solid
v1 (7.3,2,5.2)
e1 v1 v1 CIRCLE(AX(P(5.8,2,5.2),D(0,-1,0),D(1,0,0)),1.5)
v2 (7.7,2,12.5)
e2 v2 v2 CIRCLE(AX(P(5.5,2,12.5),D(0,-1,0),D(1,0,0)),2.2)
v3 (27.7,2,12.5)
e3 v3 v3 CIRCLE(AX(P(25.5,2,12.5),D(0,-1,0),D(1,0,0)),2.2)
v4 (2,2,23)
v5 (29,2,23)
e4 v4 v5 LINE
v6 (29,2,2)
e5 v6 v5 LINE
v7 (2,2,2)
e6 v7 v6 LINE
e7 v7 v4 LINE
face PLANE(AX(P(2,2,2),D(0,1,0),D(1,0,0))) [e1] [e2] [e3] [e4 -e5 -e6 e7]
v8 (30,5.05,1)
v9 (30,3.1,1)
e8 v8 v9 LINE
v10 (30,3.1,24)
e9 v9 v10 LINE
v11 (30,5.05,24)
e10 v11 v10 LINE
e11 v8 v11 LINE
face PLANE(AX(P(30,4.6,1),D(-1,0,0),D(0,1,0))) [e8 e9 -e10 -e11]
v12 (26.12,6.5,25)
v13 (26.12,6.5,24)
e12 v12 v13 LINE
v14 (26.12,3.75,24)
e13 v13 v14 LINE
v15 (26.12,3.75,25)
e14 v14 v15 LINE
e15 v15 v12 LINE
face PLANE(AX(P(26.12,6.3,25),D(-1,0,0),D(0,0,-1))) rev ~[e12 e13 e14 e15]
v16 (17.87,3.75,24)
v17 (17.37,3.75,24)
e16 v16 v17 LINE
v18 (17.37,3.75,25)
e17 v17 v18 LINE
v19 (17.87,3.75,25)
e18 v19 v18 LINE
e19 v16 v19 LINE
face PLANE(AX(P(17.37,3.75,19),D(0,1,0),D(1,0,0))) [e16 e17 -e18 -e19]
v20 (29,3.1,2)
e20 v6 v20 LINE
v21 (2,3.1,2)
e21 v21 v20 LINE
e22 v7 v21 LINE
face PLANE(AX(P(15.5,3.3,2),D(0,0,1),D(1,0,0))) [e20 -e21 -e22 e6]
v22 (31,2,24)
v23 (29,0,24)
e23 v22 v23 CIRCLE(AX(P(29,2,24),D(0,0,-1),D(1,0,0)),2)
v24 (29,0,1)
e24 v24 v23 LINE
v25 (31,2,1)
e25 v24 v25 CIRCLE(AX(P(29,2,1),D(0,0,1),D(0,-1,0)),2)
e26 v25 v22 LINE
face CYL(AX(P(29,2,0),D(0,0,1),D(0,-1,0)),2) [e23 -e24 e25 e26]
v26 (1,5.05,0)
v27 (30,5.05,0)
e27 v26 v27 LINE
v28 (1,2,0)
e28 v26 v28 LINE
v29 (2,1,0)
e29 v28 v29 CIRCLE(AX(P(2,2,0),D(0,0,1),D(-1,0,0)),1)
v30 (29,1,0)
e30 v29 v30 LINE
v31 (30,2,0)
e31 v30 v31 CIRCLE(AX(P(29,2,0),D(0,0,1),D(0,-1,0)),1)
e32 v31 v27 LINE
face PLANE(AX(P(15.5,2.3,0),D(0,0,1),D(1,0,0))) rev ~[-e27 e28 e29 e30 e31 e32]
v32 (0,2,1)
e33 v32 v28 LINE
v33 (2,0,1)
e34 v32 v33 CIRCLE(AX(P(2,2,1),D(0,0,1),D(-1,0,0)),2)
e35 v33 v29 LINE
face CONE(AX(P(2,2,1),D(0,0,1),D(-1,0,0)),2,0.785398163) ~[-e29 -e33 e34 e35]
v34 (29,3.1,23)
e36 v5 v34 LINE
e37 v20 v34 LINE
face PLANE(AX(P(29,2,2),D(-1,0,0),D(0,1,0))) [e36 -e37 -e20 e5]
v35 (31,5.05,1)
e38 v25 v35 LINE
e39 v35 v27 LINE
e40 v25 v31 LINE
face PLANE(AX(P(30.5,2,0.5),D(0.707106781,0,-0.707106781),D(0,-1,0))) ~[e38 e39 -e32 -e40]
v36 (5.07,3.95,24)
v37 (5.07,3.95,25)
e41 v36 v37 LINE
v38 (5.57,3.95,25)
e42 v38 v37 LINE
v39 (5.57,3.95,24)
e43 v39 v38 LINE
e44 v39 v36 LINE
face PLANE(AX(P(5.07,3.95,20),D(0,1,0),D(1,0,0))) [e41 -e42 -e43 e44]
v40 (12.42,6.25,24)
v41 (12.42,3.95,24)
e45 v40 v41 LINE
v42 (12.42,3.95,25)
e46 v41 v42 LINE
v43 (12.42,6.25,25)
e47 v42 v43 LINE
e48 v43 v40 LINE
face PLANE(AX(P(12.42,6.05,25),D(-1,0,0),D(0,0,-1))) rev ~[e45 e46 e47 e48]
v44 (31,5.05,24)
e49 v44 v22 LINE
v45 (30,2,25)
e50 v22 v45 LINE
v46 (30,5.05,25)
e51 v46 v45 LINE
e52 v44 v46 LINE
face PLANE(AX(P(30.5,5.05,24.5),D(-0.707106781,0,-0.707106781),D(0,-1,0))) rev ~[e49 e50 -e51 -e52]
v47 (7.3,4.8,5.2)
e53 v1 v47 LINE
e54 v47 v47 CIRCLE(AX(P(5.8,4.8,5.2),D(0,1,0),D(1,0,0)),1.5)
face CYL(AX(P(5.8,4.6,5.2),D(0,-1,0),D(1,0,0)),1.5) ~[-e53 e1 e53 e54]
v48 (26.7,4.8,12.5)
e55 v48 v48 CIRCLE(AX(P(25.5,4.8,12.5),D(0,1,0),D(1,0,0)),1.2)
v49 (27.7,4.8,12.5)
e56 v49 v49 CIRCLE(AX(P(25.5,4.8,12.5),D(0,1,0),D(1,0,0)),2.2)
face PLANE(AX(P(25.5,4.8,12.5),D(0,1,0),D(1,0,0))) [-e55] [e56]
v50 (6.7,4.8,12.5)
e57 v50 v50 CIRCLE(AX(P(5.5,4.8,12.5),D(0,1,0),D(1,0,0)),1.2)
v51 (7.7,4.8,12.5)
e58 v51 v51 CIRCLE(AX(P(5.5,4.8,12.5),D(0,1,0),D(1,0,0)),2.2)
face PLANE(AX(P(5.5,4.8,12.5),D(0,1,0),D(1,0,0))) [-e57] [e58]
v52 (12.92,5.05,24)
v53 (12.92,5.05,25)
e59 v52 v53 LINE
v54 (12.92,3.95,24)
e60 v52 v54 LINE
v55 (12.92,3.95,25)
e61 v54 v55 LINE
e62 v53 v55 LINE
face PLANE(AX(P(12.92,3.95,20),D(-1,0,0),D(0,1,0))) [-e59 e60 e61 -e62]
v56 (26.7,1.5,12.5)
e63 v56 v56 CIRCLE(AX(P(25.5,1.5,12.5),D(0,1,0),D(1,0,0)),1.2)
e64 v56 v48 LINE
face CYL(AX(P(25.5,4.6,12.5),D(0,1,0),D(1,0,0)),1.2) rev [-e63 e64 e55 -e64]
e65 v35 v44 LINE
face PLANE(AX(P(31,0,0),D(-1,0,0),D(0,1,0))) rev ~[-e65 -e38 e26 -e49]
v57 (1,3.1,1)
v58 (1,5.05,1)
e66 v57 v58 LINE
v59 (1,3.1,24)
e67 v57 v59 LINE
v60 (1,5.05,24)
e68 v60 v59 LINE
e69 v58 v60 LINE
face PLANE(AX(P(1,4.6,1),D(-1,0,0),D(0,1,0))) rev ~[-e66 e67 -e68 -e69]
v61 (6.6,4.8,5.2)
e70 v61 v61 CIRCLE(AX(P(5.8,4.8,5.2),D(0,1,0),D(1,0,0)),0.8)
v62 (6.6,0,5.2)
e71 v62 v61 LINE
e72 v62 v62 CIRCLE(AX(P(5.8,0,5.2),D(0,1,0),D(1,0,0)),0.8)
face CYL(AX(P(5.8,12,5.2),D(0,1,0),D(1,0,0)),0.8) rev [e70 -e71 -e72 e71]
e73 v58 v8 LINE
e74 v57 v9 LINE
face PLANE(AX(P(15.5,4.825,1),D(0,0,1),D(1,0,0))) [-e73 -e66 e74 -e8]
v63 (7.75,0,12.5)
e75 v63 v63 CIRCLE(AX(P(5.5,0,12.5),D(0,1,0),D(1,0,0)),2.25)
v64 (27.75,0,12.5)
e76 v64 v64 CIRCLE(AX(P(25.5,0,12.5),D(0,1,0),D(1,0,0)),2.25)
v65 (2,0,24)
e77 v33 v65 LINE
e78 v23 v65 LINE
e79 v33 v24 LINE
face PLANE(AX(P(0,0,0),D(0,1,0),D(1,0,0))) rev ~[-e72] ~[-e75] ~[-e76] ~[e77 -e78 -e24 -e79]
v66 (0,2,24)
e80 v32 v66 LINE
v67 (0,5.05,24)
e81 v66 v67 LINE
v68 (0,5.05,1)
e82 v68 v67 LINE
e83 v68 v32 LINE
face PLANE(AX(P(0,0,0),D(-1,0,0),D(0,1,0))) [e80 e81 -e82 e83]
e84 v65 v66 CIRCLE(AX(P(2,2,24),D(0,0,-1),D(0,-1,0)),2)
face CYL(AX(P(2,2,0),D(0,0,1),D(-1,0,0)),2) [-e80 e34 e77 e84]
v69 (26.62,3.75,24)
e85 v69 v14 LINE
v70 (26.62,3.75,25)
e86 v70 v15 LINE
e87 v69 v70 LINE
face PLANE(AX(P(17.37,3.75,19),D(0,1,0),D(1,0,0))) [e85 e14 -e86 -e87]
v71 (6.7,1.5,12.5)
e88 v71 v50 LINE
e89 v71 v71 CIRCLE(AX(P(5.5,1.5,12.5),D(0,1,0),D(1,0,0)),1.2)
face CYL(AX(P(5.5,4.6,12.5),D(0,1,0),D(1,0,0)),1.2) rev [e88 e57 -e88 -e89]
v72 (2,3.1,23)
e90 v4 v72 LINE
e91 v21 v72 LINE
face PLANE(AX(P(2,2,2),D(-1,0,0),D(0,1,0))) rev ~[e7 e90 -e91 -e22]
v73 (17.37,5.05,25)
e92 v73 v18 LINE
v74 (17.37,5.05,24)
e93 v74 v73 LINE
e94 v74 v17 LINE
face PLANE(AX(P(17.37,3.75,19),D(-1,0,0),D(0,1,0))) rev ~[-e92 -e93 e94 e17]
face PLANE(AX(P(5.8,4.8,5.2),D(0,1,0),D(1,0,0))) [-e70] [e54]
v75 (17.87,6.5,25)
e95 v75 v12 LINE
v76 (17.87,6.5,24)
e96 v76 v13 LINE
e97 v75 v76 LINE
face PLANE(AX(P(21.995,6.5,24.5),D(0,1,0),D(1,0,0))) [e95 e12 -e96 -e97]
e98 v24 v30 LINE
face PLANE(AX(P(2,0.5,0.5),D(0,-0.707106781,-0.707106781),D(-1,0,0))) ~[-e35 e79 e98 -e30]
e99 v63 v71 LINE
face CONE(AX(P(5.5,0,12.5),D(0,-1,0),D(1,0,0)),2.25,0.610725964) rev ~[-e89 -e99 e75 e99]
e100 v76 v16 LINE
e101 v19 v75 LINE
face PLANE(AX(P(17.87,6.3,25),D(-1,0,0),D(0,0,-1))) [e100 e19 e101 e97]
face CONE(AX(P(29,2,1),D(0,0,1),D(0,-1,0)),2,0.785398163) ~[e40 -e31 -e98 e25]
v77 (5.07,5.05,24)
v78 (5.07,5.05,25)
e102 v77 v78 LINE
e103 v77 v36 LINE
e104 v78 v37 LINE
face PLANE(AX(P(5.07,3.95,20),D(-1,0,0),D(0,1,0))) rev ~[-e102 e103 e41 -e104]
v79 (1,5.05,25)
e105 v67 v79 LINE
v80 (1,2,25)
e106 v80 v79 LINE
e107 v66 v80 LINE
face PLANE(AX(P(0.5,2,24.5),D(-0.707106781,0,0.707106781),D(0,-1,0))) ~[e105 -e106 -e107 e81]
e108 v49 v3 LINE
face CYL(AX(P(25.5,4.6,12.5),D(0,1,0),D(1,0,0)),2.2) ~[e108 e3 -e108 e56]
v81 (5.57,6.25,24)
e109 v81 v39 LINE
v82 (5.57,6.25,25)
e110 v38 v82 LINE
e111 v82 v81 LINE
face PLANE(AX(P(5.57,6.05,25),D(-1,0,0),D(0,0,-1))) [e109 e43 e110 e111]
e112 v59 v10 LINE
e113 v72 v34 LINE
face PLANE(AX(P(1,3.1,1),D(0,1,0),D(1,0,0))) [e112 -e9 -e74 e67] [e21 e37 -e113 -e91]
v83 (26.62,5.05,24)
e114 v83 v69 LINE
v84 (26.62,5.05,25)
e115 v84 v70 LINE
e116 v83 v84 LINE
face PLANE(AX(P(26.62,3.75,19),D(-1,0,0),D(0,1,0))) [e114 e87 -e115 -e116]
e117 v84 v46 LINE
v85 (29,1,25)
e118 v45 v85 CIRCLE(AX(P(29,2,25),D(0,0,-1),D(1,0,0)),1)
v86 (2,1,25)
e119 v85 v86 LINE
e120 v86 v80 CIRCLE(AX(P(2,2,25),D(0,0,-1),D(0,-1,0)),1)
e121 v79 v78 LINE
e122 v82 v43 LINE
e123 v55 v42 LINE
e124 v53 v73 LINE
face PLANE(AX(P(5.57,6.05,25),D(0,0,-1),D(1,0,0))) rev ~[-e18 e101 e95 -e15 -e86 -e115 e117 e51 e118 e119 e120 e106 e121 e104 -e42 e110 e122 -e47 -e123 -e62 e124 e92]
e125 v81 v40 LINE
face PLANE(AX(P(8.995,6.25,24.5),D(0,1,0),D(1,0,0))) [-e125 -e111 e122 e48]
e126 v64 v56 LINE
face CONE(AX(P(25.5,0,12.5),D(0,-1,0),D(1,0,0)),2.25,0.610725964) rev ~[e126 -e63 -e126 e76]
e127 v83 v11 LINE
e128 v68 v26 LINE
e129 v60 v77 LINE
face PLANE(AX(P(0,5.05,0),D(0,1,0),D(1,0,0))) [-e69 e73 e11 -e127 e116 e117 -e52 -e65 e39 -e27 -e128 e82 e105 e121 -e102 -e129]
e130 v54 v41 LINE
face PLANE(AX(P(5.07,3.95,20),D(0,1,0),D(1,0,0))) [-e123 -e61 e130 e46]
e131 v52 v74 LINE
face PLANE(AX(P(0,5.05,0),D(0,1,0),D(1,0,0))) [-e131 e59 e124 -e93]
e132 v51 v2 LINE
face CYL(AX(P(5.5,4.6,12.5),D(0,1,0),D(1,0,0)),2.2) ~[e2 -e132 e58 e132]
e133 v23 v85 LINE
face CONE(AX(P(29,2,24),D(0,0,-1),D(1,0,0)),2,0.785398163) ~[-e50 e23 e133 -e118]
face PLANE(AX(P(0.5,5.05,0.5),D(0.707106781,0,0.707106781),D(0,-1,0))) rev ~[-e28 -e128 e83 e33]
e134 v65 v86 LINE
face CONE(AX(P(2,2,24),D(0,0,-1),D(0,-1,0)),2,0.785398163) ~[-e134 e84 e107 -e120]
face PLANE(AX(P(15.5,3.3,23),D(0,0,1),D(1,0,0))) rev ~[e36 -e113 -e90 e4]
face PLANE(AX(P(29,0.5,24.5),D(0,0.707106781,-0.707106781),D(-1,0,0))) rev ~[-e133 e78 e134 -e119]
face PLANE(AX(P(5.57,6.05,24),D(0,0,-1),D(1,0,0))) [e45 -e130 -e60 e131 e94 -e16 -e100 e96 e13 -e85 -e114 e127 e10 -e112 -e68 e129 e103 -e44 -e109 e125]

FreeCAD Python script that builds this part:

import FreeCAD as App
import Part
import Sketcher
Q = App.Units.Quantity


def edges_at(feature, points):
    """Names of the edges that pass closest to the given points."""
    edges = feature.Shape.Edges
    near = lambda p: min(range(len(edges)), key=lambda i: edges[i].distToShape(Part.Vertex(*p))[0])
    return sorted({f"Edge{near(p) + 1}" for p in points})


def add_polygon(sketch, points):
    """Adds a closed chain of lines whose ends are joined by coincident constraints."""
    first, n = sketch.GeometryCount, len(points)
    for a, b in zip(points, points[1:] + points[:1]):
        sketch.addGeometry(Part.LineSegment(App.Vector(*a, 0), App.Vector(*b, 0)), False)
    for i in range(n):
        sketch.addConstraint(Sketcher.Constraint("Coincident", first + i, 2, first + (i + 1) % n, 1))

doc = App.newDocument("Part")
body = doc.addObject("PartDesign::Body", "Body")

sketch1 = doc.addObject("Sketcher::SketchObject", "Sketch")
body.addObject(sketch1)
sketch1.AttachmentSupport = (doc.XZ_Plane, [""])
sketch1.MapMode = "FlatFace"
sketch1.AttachmentOffset = App.Placement(App.Vector(0, 0, -6.3), App.Rotation())
add_polygon(sketch1, [(17.9, 24), (17.9, 25), (26.1, 25), (26.1, 24)])
sketch1.addConstraint(Sketcher.Constraint("Vertical", 0))
sketch1.addConstraint(Sketcher.Constraint("Horizontal", 1))
sketch1.addConstraint(Sketcher.Constraint("Vertical", 2))
sketch1.addConstraint(Sketcher.Constraint("Horizontal", 3))
sketch1.addConstraint(Sketcher.Constraint("DistanceY", 0, 1, 0, 2, Q("1 mm")))
sketch1.addConstraint(Sketcher.Constraint("DistanceY", -1, 1, 0, 2, Q("25 mm")))
sketch1.addConstraint(Sketcher.Constraint("DistanceX", 1, 1, 1, 2, Q("8.25 mm")))
sketch1.addConstraint(Sketcher.Constraint("DistanceX", -1, 1, 0, 2, Q("17.87 mm")))
pad1 = doc.addObject("PartDesign::Pad", "Pad")
body.addObject(pad1)
pad1.Profile = sketch1
pad1.Length = 0.2
pad1.Reversed = True
body2 = doc.addObject("PartDesign::Body", "Body001")

sketch2 = doc.addObject("Sketcher::SketchObject", "Sketch001")
body2.addObject(sketch2)
sketch2.AttachmentSupport = (doc.getObject("XZ_Plane001"), [""])
sketch2.MapMode = "FlatFace"
sketch2.AttachmentOffset = App.Placement(App.Vector(0, 0, -6.05), App.Rotation())
add_polygon(sketch2, [(5.6, 24), (5.6, 25), (12.4, 25), (12.4, 24)])
sketch2.addConstraint(Sketcher.Constraint("Vertical", 0))
sketch2.addConstraint(Sketcher.Constraint("Horizontal", 1))
sketch2.addConstraint(Sketcher.Constraint("Vertical", 2))
sketch2.addConstraint(Sketcher.Constraint("Horizontal", 3))
sketch2.addConstraint(Sketcher.Constraint("DistanceY", 0, 1, 0, 2, Q("1 mm")))
sketch2.addConstraint(Sketcher.Constraint("DistanceY", -1, 1, 0, 2, Q("25 mm")))
sketch2.addConstraint(Sketcher.Constraint("DistanceX", 1, 1, 1, 2, Q("6.85 mm")))
sketch2.addConstraint(Sketcher.Constraint("DistanceX", -1, 1, 0, 2, Q("5.57 mm")))
pad2 = doc.addObject("PartDesign::Pad", "Pad001")
body2.addObject(pad2)
pad2.Profile = sketch2
pad2.Length = 0.2
pad2.Reversed = True
body3 = doc.addObject("PartDesign::Body", "Body002")

sketch3 = doc.addObject("Sketcher::SketchObject", "Sketch002")
body3.addObject(sketch3)
sketch3.AttachmentSupport = (doc.getObject("XY_Plane002"), [""])
sketch3.MapMode = "FlatFace"
sketch3.AttachmentOffset = App.Placement(App.Vector(0, 0, 24), App.Rotation())
add_polygon(sketch3, [(17.9, 6.3), (17.9, 3.8), (26.1, 3.8), (26.1, 6.3)])
sketch3.addConstraint(Sketcher.Constraint("Vertical", 0))
sketch3.addConstraint(Sketcher.Constraint("Horizontal", 1))
sketch3.addConstraint(Sketcher.Constraint("Vertical", 2))
sketch3.addConstraint(Sketcher.Constraint("Horizontal", 3))
sketch3.addConstraint(Sketcher.Constraint("DistanceX", 1, 1, 1, 2, Q("8.25 mm")))
sketch3.addConstraint(Sketcher.Constraint("DistanceY", 0, 2, 0, 1, Q("2.55 mm")))
sketch3.addConstraint(Sketcher.Constraint("DistanceY", -1, 1, 2, 2, Q("6.3 mm")))
sketch3.addConstraint(Sketcher.Constraint("DistanceX", -1, 1, 0, 2, Q("17.87 mm")))
pad3 = doc.addObject("PartDesign::Pad", "Pad002")
body3.addObject(pad3)
pad3.Profile = sketch3
pad3.Length = 1
body4 = doc.addObject("PartDesign::Body", "Body003")

sketch4 = doc.addObject("Sketcher::SketchObject", "Sketch003")
body4.addObject(sketch4)
sketch4.AttachmentSupport = (doc.getObject("XY_Plane003"), [""])
sketch4.MapMode = "FlatFace"
sketch4.AttachmentOffset = App.Placement(App.Vector(0, 0, 24), App.Rotation())
add_polygon(sketch4, [(5.6, 6), (5.6, 4), (12.4, 4), (12.4, 6)])
sketch4.addConstraint(Sketcher.Constraint("Vertical", 0))
sketch4.addConstraint(Sketcher.Constraint("Horizontal", 1))
sketch4.addConstraint(Sketcher.Constraint("Vertical", 2))
sketch4.addConstraint(Sketcher.Constraint("Horizontal", 3))
sketch4.addConstraint(Sketcher.Constraint("DistanceY", 0, 2, 0, 1, Q("2.1 mm")))
sketch4.addConstraint(Sketcher.Constraint("DistanceX", 1, 1, 1, 2, Q("6.85 mm")))
sketch4.addConstraint(Sketcher.Constraint("DistanceX", -1, 1, 0, 2, Q("5.57 mm")))
sketch4.addConstraint(Sketcher.Constraint("DistanceY", -1, 1, 0, 2, Q("3.95 mm")))
pad4 = doc.addObject("PartDesign::Pad", "Pad003")
body4.addObject(pad4)
pad4.Profile = sketch4
pad4.Length = 1
body5 = doc.addObject("PartDesign::Body", "Body004")

sketch5 = doc.addObject("Sketcher::SketchObject", "Sketch004")
body5.addObject(sketch5)
sketch5.AttachmentSupport = (doc.getObject("XY_Plane004"), [""])
sketch5.MapMode = "FlatFace"
sketch5.AttachmentOffset = App.Placement(App.Vector(0, 0, 12.5), App.Rotation())
add_polygon(sketch5, [(5.5, 0), (7.8, 0), (6.7, 1.5), (5.5, 1.5)])
sketch5.addGeometry(Part.LineSegment(App.Vector(5.5, 0, 0), App.Vector(5.5, 1.5, 0)), True)
sketch5.addConstraint(Sketcher.Constraint("Horizontal", 0))
sketch5.addConstraint(Sketcher.Constraint("Horizontal", 2))
sketch5.addConstraint(Sketcher.Constraint("Vertical", 3))
sketch5.addConstraint(Sketcher.Constraint("Vertical", 4))
sketch5.addConstraint(Sketcher.Constraint("Coincident", 4, 1, 3, 2))
sketch5.addConstraint(Sketcher.Constraint("PointOnObject", 0, 2, -1))
sketch5.addConstraint(Sketcher.Constraint("Horizontal", 1, 2, 4, 2))
sketch5.addConstraint(Sketcher.Constraint("DistanceX", 2, 2, 2, 1, Q("1.2 mm")))
sketch5.addConstraint(Sketcher.Constraint("DistanceY", 3, 2, 3, 1, Q("1.5 mm")))
sketch5.addConstraint(Sketcher.Constraint("DistanceX", 0, 1, 0, 2, Q("2.25 mm")))
sketch5.addConstraint(Sketcher.Constraint("DistanceX", -1, 1, 1, 2, Q("6.7 mm")))
revolution = doc.addObject("PartDesign::Revolution", "Revolution")
body5.addObject(revolution)
revolution.Profile = sketch5
revolution.ReferenceAxis = (sketch5, ["Axis0"])
revolution.Angle = 360
body6 = doc.addObject("PartDesign::Body", "Body005")
body6.AllowCompound = True

sketch6 = doc.addObject("Sketcher::SketchObject", "Sketch005")
body6.addObject(sketch6)
sketch6.AttachmentSupport = (doc.getObject("XY_Plane005"), [""])
sketch6.MapMode = "FlatFace"
sketch6.AttachmentOffset = App.Placement(App.Vector(0, 0, 12.5), App.Rotation())
add_polygon(sketch6, [(25.5, 0), (27.8, 0), (26.7, 1.5), (25.5, 1.5)])
sketch6.addGeometry(Part.LineSegment(App.Vector(25.5, 0, 0), App.Vector(25.5, 1.5, 0)), True)
sketch6.addConstraint(Sketcher.Constraint("Horizontal", 0))
sketch6.addConstraint(Sketcher.Constraint("Horizontal", 2))
sketch6.addConstraint(Sketcher.Constraint("Vertical", 3))
sketch6.addConstraint(Sketcher.Constraint("Vertical", 4))
sketch6.addConstraint(Sketcher.Constraint("Coincident", 4, 1, 3, 2))
sketch6.addConstraint(Sketcher.Constraint("PointOnObject", 0, 2, -1))
sketch6.addConstraint(Sketcher.Constraint("Horizontal", 1, 2, 4, 2))
sketch6.addConstraint(Sketcher.Constraint("DistanceX", 2, 2, 2, 1, Q("1.2 mm")))
sketch6.addConstraint(Sketcher.Constraint("DistanceY", 3, 2, 3, 1, Q("1.5 mm")))
sketch6.addConstraint(Sketcher.Constraint("DistanceX", 0, 1, 0, 2, Q("2.25 mm")))
sketch6.addConstraint(Sketcher.Constraint("DistanceX", -1, 1, 1, 2, Q("26.7 mm")))
revolution2 = doc.addObject("PartDesign::Revolution", "Revolution001")
body6.addObject(revolution2)
revolution2.Profile = sketch6
revolution2.ReferenceAxis = (sketch6, ["Axis0"])
revolution2.Angle = 360
doc.recompute()

boolean = doc.addObject("PartDesign::Boolean", "Boolean")
body6.addObject(boolean)
boolean.Type = "Fuse"
boolean.addObjects([body5])
body7 = doc.addObject("PartDesign::Body", "Body006")

sketch7 = doc.addObject("Sketcher::SketchObject", "Sketch006")
body7.addObject(sketch7)
sketch7.AttachmentSupport = (doc.getObject("XY_Plane006"), [""])
sketch7.MapMode = "FlatFace"
sketch7.AttachmentOffset = App.Placement(App.Vector(0, 0, 20), App.Rotation())
add_polygon(sketch7, [(5.1, 6), (5.1, 4), (12.9, 4), (12.9, 6)])
sketch7.addConstraint(Sketcher.Constraint("Vertical", 0))
sketch7.addConstraint(Sketcher.Constraint("Horizontal", 1))
sketch7.addConstraint(Sketcher.Constraint("Vertical", 2))
sketch7.addConstraint(Sketcher.Constraint("Horizontal", 3))
sketch7.addConstraint(Sketcher.Constraint("DistanceY", 0, 2, 0, 1, Q("2.1 mm")))
sketch7.addConstraint(Sketcher.Constraint("DistanceX", 1, 1, 1, 2, Q("7.85 mm")))
sketch7.addConstraint(Sketcher.Constraint("DistanceX", -1, 1, 0, 2, Q("5.07 mm")))
sketch7.addConstraint(Sketcher.Constraint("DistanceY", -1, 1, 0, 2, Q("3.95 mm")))
pad5 = doc.addObject("PartDesign::Pad", "Pad004")
body7.addObject(pad5)
pad5.Profile = sketch7
pad5.Length = 10
body8 = doc.addObject("PartDesign::Body", "Body007")
body8.AllowCompound = True

sketch8 = doc.addObject("Sketcher::SketchObject", "Sketch007")
body8.addObject(sketch8)
sketch8.AttachmentSupport = (doc.getObject("XY_Plane007"), [""])
sketch8.MapMode = "FlatFace"
sketch8.AttachmentOffset = App.Placement(App.Vector(0, 0, 19), App.Rotation())
add_polygon(sketch8, [(17.4, 6.3), (17.4, 3.8), (26.6, 3.8), (26.6, 6.3)])
sketch8.addConstraint(Sketcher.Constraint("Vertical", 0))
sketch8.addConstraint(Sketcher.Constraint("Horizontal", 1))
sketch8.addConstraint(Sketcher.Constraint("Vertical", 2))
sketch8.addConstraint(Sketcher.Constraint("Horizontal", 3))
sketch8.addConstraint(Sketcher.Constraint("DistanceX", 1, 1, 1, 2, Q("9.25 mm")))
sketch8.addConstraint(Sketcher.Constraint("DistanceY", 0, 2, 0, 1, Q("2.55 mm")))
sketch8.addConstraint(Sketcher.Constraint("DistanceY", -1, 1, 2, 2, Q("6.3 mm")))
sketch8.addConstraint(Sketcher.Constraint("DistanceX", -1, 1, 0, 2, Q("17.37 mm")))
pad6 = doc.addObject("PartDesign::Pad", "Pad005")
body8.addObject(pad6)
pad6.Profile = sketch8
pad6.Length = 10
doc.recompute()

boolean2 = doc.addObject("PartDesign::Boolean", "Boolean001")
body8.addObject(boolean2)
boolean2.Type = "Fuse"
boolean2.addObjects([body7])
body9 = doc.addObject("PartDesign::Body", "Body008")

sketch9 = doc.addObject("Sketcher::SketchObject", "Sketch008")
body9.addObject(sketch9)
sketch9.AttachmentSupport = (doc.getObject("XY_Plane008"), [""])
sketch9.MapMode = "FlatFace"
sketch9.AttachmentOffset = App.Placement(App.Vector(0, 0, 2), App.Rotation())
add_polygon(sketch9, [(2, 4.6), (2, 3.1), (29, 3.1), (29, 4.6)])
sketch9.addConstraint(Sketcher.Constraint("Vertical", 0))
sketch9.addConstraint(Sketcher.Constraint("Horizontal", 1))
sketch9.addConstraint(Sketcher.Constraint("Vertical", 2))
sketch9.addConstraint(Sketcher.Constraint("Horizontal", 3))
sketch9.addConstraint(Sketcher.Constraint("DistanceX", 1, 1, 1, 2, Q("27 mm")))
sketch9.addConstraint(Sketcher.Constraint("DistanceY", 0, 2, 0, 1, Q("1.5 mm")))
sketch9.addConstraint(Sketcher.Constraint("DistanceX", -1, 1, 0, 2, Q("2 mm")))
sketch9.addConstraint(Sketcher.Constraint("DistanceY", -1, 1, 0, 2, Q("3.1 mm")))
pad7 = doc.addObject("PartDesign::Pad", "Pad006")
body9.addObject(pad7)
pad7.Profile = sketch9
pad7.Length = 21
body10 = doc.addObject("PartDesign::Body", "Body009")

sketch10 = doc.addObject("Sketcher::SketchObject", "Sketch009")
body10.addObject(sketch10)
sketch10.AttachmentSupport = (doc.getObject("XY_Plane009"), [""])
sketch10.MapMode = "FlatFace"
sketch10.AttachmentOffset = App.Placement(App.Vector(0, 0, 1), App.Rotation())
add_polygon(sketch10, [(1, 4.6), (1, 3.1), (30, 3.1), (30, 4.6)])
sketch10.addConstraint(Sketcher.Constraint("Vertical", 0))
sketch10.addConstraint(Sketcher.Constraint("Horizontal", 1))
sketch10.addConstraint(Sketcher.Constraint("Vertical", 2))
sketch10.addConstraint(Sketcher.Constraint("Horizontal", 3))
sketch10.addConstraint(Sketcher.Constraint("DistanceX", 1, 1, 1, 2, Q("29 mm")))
sketch10.addConstraint(Sketcher.Constraint("DistanceY", 0, 2, 0, 1, Q("1.5 mm")))
sketch10.addConstraint(Sketcher.Constraint("DistanceX", -1, 1, 0, 2, Q("1 mm")))
sketch10.addConstraint(Sketcher.Constraint("DistanceY", -1, 1, 0, 2, Q("3.1 mm")))
pad8 = doc.addObject("PartDesign::Pad", "Pad007")
body10.addObject(pad8)
pad8.Profile = sketch10
pad8.Length = 23
doc.recompute()

boolean3 = doc.addObject("PartDesign::Boolean", "Boolean002")
body10.addObject(boolean3)
boolean3.Type = "Cut"
boolean3.addObjects([body9])
body11 = doc.addObject("PartDesign::Body", "Body010")

sketch11 = doc.addObject("Sketcher::SketchObject", "Sketch010")
body11.addObject(sketch11)
sketch11.AttachmentSupport = (doc.getObject("XZ_Plane010"), [""])
sketch11.MapMode = "FlatFace"
sketch11.AttachmentOffset = App.Placement(App.Vector(0, 0, -12), App.Rotation())
sketch11.addGeometry(Part.Circle(App.Vector(5.8, 5.2, 0), App.Vector(0, 0, 1), 0.8), False)
sketch11.addConstraint(Sketcher.Constraint("Diameter", 0, Q("1.6 mm")))
sketch11.addConstraint(Sketcher.Constraint("DistanceX", -1, 1, 0, 3, Q("5.8 mm")))
sketch11.addConstraint(Sketcher.Constraint("DistanceY", -1, 1, 0, 3, Q("5.2 mm")))
pad9 = doc.addObject("PartDesign::Pad", "Pad008")
body11.addObject(pad9)
pad9.Profile = sketch11
pad9.Length = 20.6
body12 = doc.addObject("PartDesign::Body", "Body011")

sketch12 = doc.addObject("Sketcher::SketchObject", "Sketch011")
body12.addObject(sketch12)
sketch12.AttachmentSupport = (doc.getObject("XZ_Plane011"), [""])
sketch12.MapMode = "FlatFace"
sketch12.AttachmentOffset = App.Placement(App.Vector(0, 0, -4.6), App.Rotation())
sketch12.addGeometry(Part.Circle(App.Vector(5.5, 12.5, 0), App.Vector(0, 0, 1), 1.2), False)
sketch12.addConstraint(Sketcher.Constraint("Diameter", 0, Q("2.4 mm")))
sketch12.addConstraint(Sketcher.Constraint("DistanceX", -1, 1, 0, 3, Q("5.5 mm")))
sketch12.addConstraint(Sketcher.Constraint("DistanceY", -1, 1, 0, 3, Q("12.5 mm")))
pad10 = doc.addObject("PartDesign::Pad", "Pad009")
body12.addObject(pad10)
pad10.Profile = sketch12
pad10.Length = 10.6
body13 = doc.addObject("PartDesign::Body", "Body012")
body13.AllowCompound = True

sketch13 = doc.addObject("Sketcher::SketchObject", "Sketch012")
body13.addObject(sketch13)
sketch13.AttachmentSupport = (doc.getObject("XZ_Plane012"), [""])
sketch13.MapMode = "FlatFace"
sketch13.AttachmentOffset = App.Placement(App.Vector(0, 0, -4.6), App.Rotation())
sketch13.addGeometry(Part.Circle(App.Vector(25.5, 12.5, 0), App.Vector(0, 0, 1), 1.2), False)
sketch13.addConstraint(Sketcher.Constraint("Diameter", 0, Q("2.4 mm")))
sketch13.addConstraint(Sketcher.Constraint("DistanceX", -1, 1, 0, 3, Q("25.5 mm")))
sketch13.addConstraint(Sketcher.Constraint("DistanceY", -1, 1, 0, 3, Q("12.5 mm")))
pad11 = doc.addObject("PartDesign::Pad", "Pad010")
body13.addObject(pad11)
pad11.Profile = sketch13
pad11.Length = 10.6
doc.recompute()

boolean4 = doc.addObject("PartDesign::Boolean", "Boolean003")
body13.addObject(boolean4)
boolean4.Type = "Fuse"
boolean4.addObjects([body12])
body14 = doc.addObject("PartDesign::Body", "Body013")

sketch14 = doc.addObject("Sketcher::SketchObject", "Sketch013")
body14.addObject(sketch14)
sketch14.AttachmentSupport = (doc.getObject("XZ_Plane013"), [""])
sketch14.MapMode = "FlatFace"
sketch14.AttachmentOffset = App.Placement(App.Vector(0, 0, -4.6), App.Rotation())
sketch14.addGeometry(Part.Circle(App.Vector(5.5, 12.5, 0), App.Vector(0, 0, 1), 2.2), False)
sketch14.addConstraint(Sketcher.Constraint("Diameter", 0, Q("4.4 mm")))
sketch14.addConstraint(Sketcher.Constraint("DistanceX", -1, 1, 0, 3, Q("5.5 mm")))
sketch14.addConstraint(Sketcher.Constraint("DistanceY", -1, 1, 0, 3, Q("12.5 mm")))
pad12 = doc.addObject("PartDesign::Pad", "Pad011")
body14.addObject(pad12)
pad12.Profile = sketch14
pad12.Length = 2.6
body15 = doc.addObject("PartDesign::Body", "Body014")

sketch15 = doc.addObject("Sketcher::SketchObject", "Sketch014")
body15.addObject(sketch15)
sketch15.AttachmentSupport = (doc.getObject("XY_Plane014"), [""])
sketch15.MapMode = "FlatFace"
sketch15.AttachmentOffset = App.Placement(App.Vector(0, 0, 2), App.Rotation())
add_polygon(sketch15, [(2, 4.6), (2, 2), (29, 2), (29, 4.6)])
sketch15.addConstraint(Sketcher.Constraint("Vertical", 0))
sketch15.addConstraint(Sketcher.Constraint("Horizontal", 1))
sketch15.addConstraint(Sketcher.Constraint("Vertical", 2))
sketch15.addConstraint(Sketcher.Constraint("Horizontal", 3))
sketch15.addConstraint(Sketcher.Constraint("DistanceX", 1, 1, 1, 2, Q("27 mm")))
sketch15.addConstraint(Sketcher.Constraint("DistanceY", 0, 2, 0, 1, Q("2.6 mm")))
sketch15.addConstraint(Sketcher.Constraint("DistanceX", -1, 1, 0, 2, Q("2 mm")))
sketch15.addConstraint(Sketcher.Constraint("DistanceY", -1, 1, 0, 2, Q("2 mm")))
pad13 = doc.addObject("PartDesign::Pad", "Pad012")
body15.addObject(pad13)
pad13.Profile = sketch15
pad13.Length = 21
body16 = doc.addObject("PartDesign::Body", "Body015")

sketch16 = doc.addObject("Sketcher::SketchObject", "Sketch015")
body16.addObject(sketch16)
sketch16.AttachmentSupport = (doc.getObject("XY_Plane015"), [""])
sketch16.MapMode = "FlatFace"
add_polygon(sketch16, [(0, 4.6), (0, 0), (31, 0), (31, 4.6)])
sketch16.addConstraint(Sketcher.Constraint("Vertical", 0))
sketch16.addConstraint(Sketcher.Constraint("Horizontal", 1))
sketch16.addConstraint(Sketcher.Constraint("Vertical", 2))
sketch16.addConstraint(Sketcher.Constraint("Horizontal", 3))
sketch16.addConstraint(Sketcher.Constraint("Coincident", 0, 2, -1, 1))
sketch16.addConstraint(Sketcher.Constraint("DistanceX", 1, 1, 1, 2, Q("31 mm")))
sketch16.addConstraint(Sketcher.Constraint("DistanceY", 0, 2, 0, 1, Q("4.6 mm")))
pad14 = doc.addObject("PartDesign::Pad", "Pad013")
body16.addObject(pad14)
pad14.Profile = sketch16
pad14.Length = 25
doc.recompute()

boolean5 = doc.addObject("PartDesign::Boolean", "Boolean004")
body16.addObject(boolean5)
boolean5.Type = "Cut"
boolean5.addObjects([body15])
body17 = doc.addObject("PartDesign::Body", "Body016")
body17.AllowCompound = True

sketch17 = doc.addObject("Sketcher::SketchObject", "Sketch016")
body17.addObject(sketch17)
sketch17.AttachmentSupport = (doc.getObject("XZ_Plane016"), [""])
sketch17.MapMode = "FlatFace"
sketch17.AttachmentOffset = App.Placement(App.Vector(0, 0, -4.6), App.Rotation())
sketch17.addGeometry(Part.Circle(App.Vector(25.5, 12.5, 0), App.Vector(0, 0, 1), 2.2), False)
sketch17.addConstraint(Sketcher.Constraint("Diameter", 0, Q("4.4 mm")))
sketch17.addConstraint(Sketcher.Constraint("DistanceX", -1, 1, 0, 3, Q("25.5 mm")))
sketch17.addConstraint(Sketcher.Constraint("DistanceY", -1, 1, 0, 3, Q("12.5 mm")))
pad15 = doc.addObject("PartDesign::Pad", "Pad014")
body17.addObject(pad15)
pad15.Profile = sketch17
pad15.Length = 2.6
doc.recompute()

boolean6 = doc.addObject("PartDesign::Boolean", "Boolean005")
body17.addObject(boolean6)
boolean6.Type = "Fuse"
boolean6.addObjects([body14])
doc.recompute()

boolean7 = doc.addObject("PartDesign::Boolean", "Boolean006")
body17.addObject(boolean7)
boolean7.Type = "Fuse"
boolean7.addObjects([body16])
doc.recompute()

boolean8 = doc.addObject("PartDesign::Boolean", "Boolean007")
body17.addObject(boolean8)
boolean8.Type = "Cut"
boolean8.addObjects([body13])
body18 = doc.addObject("PartDesign::Body", "Body017")

sketch18 = doc.addObject("Sketcher::SketchObject", "Sketch017")
body18.addObject(sketch18)
sketch18.AttachmentSupport = (doc.getObject("XZ_Plane017"), [""])
sketch18.MapMode = "FlatFace"
sketch18.AttachmentOffset = App.Placement(App.Vector(0, 0, -4.6), App.Rotation())
sketch18.addGeometry(Part.Circle(App.Vector(5.8, 5.2, 0), App.Vector(0, 0, 1), 1.5), False)
sketch18.addConstraint(Sketcher.Constraint("Diameter", 0, Q("3 mm")))
sketch18.addConstraint(Sketcher.Constraint("DistanceX", -1, 1, 0, 3, Q("5.8 mm")))
sketch18.addConstraint(Sketcher.Constraint("DistanceY", -1, 1, 0, 3, Q("5.2 mm")))
pad16 = doc.addObject("PartDesign::Pad", "Pad015")
body18.addObject(pad16)
pad16.Profile = sketch18
pad16.Length = 2.6
doc.recompute()

boolean9 = doc.addObject("PartDesign::Boolean", "Boolean008")
body18.addObject(boolean9)
boolean9.Type = "Fuse"
boolean9.addObjects([body17])
doc.recompute()

boolean10 = doc.addObject("PartDesign::Boolean", "Boolean009")
body18.addObject(boolean10)
boolean10.Type = "Cut"
boolean10.addObjects([body11])
doc.recompute()

boolean11 = doc.addObject("PartDesign::Boolean", "Boolean010")
body18.addObject(boolean11)
boolean11.Type = "Cut"
boolean11.addObjects([body10])
body19 = doc.addObject("PartDesign::Body", "Body018")

sketch19 = doc.addObject("Sketcher::SketchObject", "Sketch018")
body19.addObject(sketch19)
sketch19.AttachmentSupport = (doc.getObject("XY_Plane018"), [""])
sketch19.MapMode = "FlatFace"
sketch19.AttachmentOffset = App.Placement(App.Vector(0, 0, 1), App.Rotation())
add_polygon(sketch19, [(1, 5.05), (1, 4.6), (30, 4.6), (30, 5.05)])
sketch19.addConstraint(Sketcher.Constraint("Vertical", 0))
sketch19.addConstraint(Sketcher.Constraint("Horizontal", 1))
sketch19.addConstraint(Sketcher.Constraint("Vertical", 2))
sketch19.addConstraint(Sketcher.Constraint("Horizontal", 3))
sketch19.addConstraint(Sketcher.Constraint("DistanceX", 1, 1, 1, 2, Q("29 mm")))
sketch19.addConstraint(Sketcher.Constraint("DistanceX", -1, 1, 0, 2, Q("1 mm")))
sketch19.addConstraint(Sketcher.Constraint("DistanceY", 0, 2, 0, 1, Q("0.45 mm")))
sketch19.addConstraint(Sketcher.Constraint("DistanceY", -1, 1, 0, 2, Q("4.6 mm")))
pad17 = doc.addObject("PartDesign::Pad", "Pad016")
body19.addObject(pad17)
pad17.Profile = sketch19
pad17.Length = 23
body20 = doc.addObject("PartDesign::Body", "Body019")

sketch20 = doc.addObject("Sketcher::SketchObject", "Sketch019")
body20.addObject(sketch20)
sketch20.AttachmentSupport = (doc.getObject("XY_Plane019"), [""])
sketch20.MapMode = "FlatFace"
add_polygon(sketch20, [(0, 5.05), (0, 4.6), (31, 4.6), (31, 5.05)])
sketch20.addConstraint(Sketcher.Constraint("Vertical", 0))
sketch20.addConstraint(Sketcher.Constraint("Horizontal", 1))
sketch20.addConstraint(Sketcher.Constraint("Vertical", 2))
sketch20.addConstraint(Sketcher.Constraint("Horizontal", 3))
sketch20.addConstraint(Sketcher.Constraint("PointOnObject", 0, 2, -2))
sketch20.addConstraint(Sketcher.Constraint("DistanceX", 1, 1, 1, 2, Q("31 mm")))
sketch20.addConstraint(Sketcher.Constraint("DistanceY", 0, 2, 0, 1, Q("0.45 mm")))
sketch20.addConstraint(Sketcher.Constraint("DistanceY", -1, 1, 0, 2, Q("4.6 mm")))
pad18 = doc.addObject("PartDesign::Pad", "Pad017")
body20.addObject(pad18)
pad18.Profile = sketch20
pad18.Length = 25
doc.recompute()

boolean12 = doc.addObject("PartDesign::Boolean", "Boolean011")
body20.addObject(boolean12)
boolean12.Type = "Cut"
boolean12.addObjects([body19])
doc.recompute()

boolean13 = doc.addObject("PartDesign::Boolean", "Boolean012")
body20.addObject(boolean13)
boolean13.Type = "Fuse"
boolean13.addObjects([body18])
doc.recompute()

boolean14 = doc.addObject("PartDesign::Boolean", "Boolean013")
body20.addObject(boolean14)
boolean14.Type = "Cut"
boolean14.addObjects([body8])
doc.recompute()

boolean15 = doc.addObject("PartDesign::Boolean", "Boolean014")
body20.addObject(boolean15)
boolean15.Type = "Cut"
boolean15.addObjects([body6])
doc.recompute()

boolean16 = doc.addObject("PartDesign::Boolean", "Boolean015")
body20.addObject(boolean16)
boolean16.Type = "Fuse"
boolean16.addObjects([body3])
doc.recompute()

boolean17 = doc.addObject("PartDesign::Boolean", "Boolean016")
body20.addObject(boolean17)
boolean17.Type = "Fuse"
boolean17.addObjects([body4])
doc.recompute()

fillet = doc.addObject("PartDesign::Fillet", "Fillet")
body20.addObject(fillet)
fillet.Base = (boolean17, edges_at(boolean17, [(0, 0, 12.5), (31, 0, 12.5)]))
fillet.Radius = 2
doc.recompute()

chamfer = doc.addObject("PartDesign::Chamfer", "Chamfer")
body20.addObject(chamfer)
chamfer.Base = (fillet, edges_at(fillet, [
    (0, 3.525, 25),
    (0, 3.525, 0),
    (0.586, 0.586, 25),
    (15.5, 0, 25),
    (30.414, 0.586, 25),
    (31, 3.525, 25),
    (0.586, 0.586, 0),
    (0, 3.525, 25),
    (0, 3.525, 0),
    (15.5, 0, 0),
    (31, 3.525, 0),
    (30.414, 0.586, 0),
    (31, 3.525, 25),
    (31, 3.525, 0),
]))
chamfer.Size = 1
body21 = doc.addObject("PartDesign::Body", "Body020")

sketch21 = doc.addObject("Sketcher::SketchObject", "Sketch020")
body21.addObject(sketch21)
sketch21.AttachmentSupport = (doc.getObject("XZ_Plane020"), [""])
sketch21.MapMode = "FlatFace"
sketch21.AttachmentOffset = App.Placement(App.Vector(0, 0, -4.6), App.Rotation())
sketch21.addGeometry(Part.Circle(App.Vector(5.5, 12.5, 0), App.Vector(0, 0, 1), 2.2), False)
sketch21.addGeometry(Part.Circle(App.Vector(5.5, 12.5, 0), App.Vector(0, 0, 1), 1.2), False)
sketch21.addConstraint(Sketcher.Constraint("Coincident", 1, 3, 0, 3))
sketch21.addConstraint(Sketcher.Constraint("Diameter", 0, Q("4.4 mm")))
sketch21.addConstraint(Sketcher.Constraint("Diameter", 1, Q("2.4 mm")))
sketch21.addConstraint(Sketcher.Constraint("DistanceX", -1, 1, 0, 3, Q("5.5 mm")))
sketch21.addConstraint(Sketcher.Constraint("DistanceY", -1, 1, 0, 3, Q("12.5 mm")))
pad19 = doc.addObject("PartDesign::Pad", "Pad018")
body21.addObject(pad19)
pad19.Profile = sketch21
pad19.Length = 0.2
pad19.Reversed = True
body22 = doc.addObject("PartDesign::Body", "Body021")

sketch22 = doc.addObject("Sketcher::SketchObject", "Sketch021")
body22.addObject(sketch22)
sketch22.AttachmentSupport = (doc.getObject("XZ_Plane021"), [""])
sketch22.MapMode = "FlatFace"
sketch22.AttachmentOffset = App.Placement(App.Vector(0, 0, -4.6), App.Rotation())
sketch22.addGeometry(Part.Circle(App.Vector(5.8, 5.2, 0), App.Vector(0, 0, 1), 1.5), False)
sketch22.addGeometry(Part.Circle(App.Vector(5.8, 5.2, 0), App.Vector(0, 0, 1), 0.8), False)
sketch22.addConstraint(Sketcher.Constraint("Coincident", 1, 3, 0, 3))
sketch22.addConstraint(Sketcher.Constraint("Diameter", 0, Q("3 mm")))
sketch22.addConstraint(Sketcher.Constraint("Diameter", 1, Q("1.6 mm")))
sketch22.addConstraint(Sketcher.Constraint("DistanceX", -1, 1, 0, 3, Q("5.8 mm")))
sketch22.addConstraint(Sketcher.Constraint("DistanceY", -1, 1, 0, 3, Q("5.2 mm")))
pad20 = doc.addObject("PartDesign::Pad", "Pad019")
body22.addObject(pad20)
pad20.Profile = sketch22
pad20.Length = 0.2
pad20.Reversed = True
body23 = doc.addObject("PartDesign::Body", "Body022")
body23.AllowCompound = True

sketch23 = doc.addObject("Sketcher::SketchObject", "Sketch022")
body23.addObject(sketch23)
sketch23.AttachmentSupport = (doc.getObject("XZ_Plane022"), [""])
sketch23.MapMode = "FlatFace"
sketch23.AttachmentOffset = App.Placement(App.Vector(0, 0, -4.6), App.Rotation())
sketch23.addGeometry(Part.Circle(App.Vector(25.5, 12.5, 0), App.Vector(0, 0, 1), 2.2), False)
sketch23.addGeometry(Part.Circle(App.Vector(25.5, 12.5, 0), App.Vector(0, 0, 1), 1.2), False)
sketch23.addConstraint(Sketcher.Constraint("Coincident", 1, 3, 0, 3))
sketch23.addConstraint(Sketcher.Constraint("Diameter", 0, Q("4.4 mm")))
sketch23.addConstraint(Sketcher.Constraint("Diameter", 1, Q("2.4 mm")))
sketch23.addConstraint(Sketcher.Constraint("DistanceX", -1, 1, 0, 3, Q("25.5 mm")))
sketch23.addConstraint(Sketcher.Constraint("DistanceY", -1, 1, 0, 3, Q("12.5 mm")))
pad21 = doc.addObject("PartDesign::Pad", "Pad020")
body23.addObject(pad21)
pad21.Profile = sketch23
pad21.Length = 0.2
pad21.Reversed = True
doc.recompute()

boolean18 = doc.addObject("PartDesign::Boolean", "Boolean017")
body23.addObject(boolean18)
boolean18.Type = "Fuse"
boolean18.addObjects([body21])
doc.recompute()

boolean19 = doc.addObject("PartDesign::Boolean", "Boolean018")
body23.addObject(boolean19)
boolean19.Type = "Fuse"
boolean19.addObjects([body22])
doc.recompute()

boolean20 = doc.addObject("PartDesign::Boolean", "Boolean019")
body23.addObject(boolean20)
boolean20.Type = "Fuse"
boolean20.addObjects([body20])
doc.recompute()

boolean21 = doc.addObject("PartDesign::Boolean", "Boolean020")
body23.addObject(boolean21)
boolean21.Type = "Fuse"
boolean21.addObjects([body])
doc.recompute()

boolean22 = doc.addObject("PartDesign::Boolean", "Boolean021")
body23.addObject(boolean22)
boolean22.Type = "Fuse"
boolean22.addObjects([body2])

doc.recompute()
